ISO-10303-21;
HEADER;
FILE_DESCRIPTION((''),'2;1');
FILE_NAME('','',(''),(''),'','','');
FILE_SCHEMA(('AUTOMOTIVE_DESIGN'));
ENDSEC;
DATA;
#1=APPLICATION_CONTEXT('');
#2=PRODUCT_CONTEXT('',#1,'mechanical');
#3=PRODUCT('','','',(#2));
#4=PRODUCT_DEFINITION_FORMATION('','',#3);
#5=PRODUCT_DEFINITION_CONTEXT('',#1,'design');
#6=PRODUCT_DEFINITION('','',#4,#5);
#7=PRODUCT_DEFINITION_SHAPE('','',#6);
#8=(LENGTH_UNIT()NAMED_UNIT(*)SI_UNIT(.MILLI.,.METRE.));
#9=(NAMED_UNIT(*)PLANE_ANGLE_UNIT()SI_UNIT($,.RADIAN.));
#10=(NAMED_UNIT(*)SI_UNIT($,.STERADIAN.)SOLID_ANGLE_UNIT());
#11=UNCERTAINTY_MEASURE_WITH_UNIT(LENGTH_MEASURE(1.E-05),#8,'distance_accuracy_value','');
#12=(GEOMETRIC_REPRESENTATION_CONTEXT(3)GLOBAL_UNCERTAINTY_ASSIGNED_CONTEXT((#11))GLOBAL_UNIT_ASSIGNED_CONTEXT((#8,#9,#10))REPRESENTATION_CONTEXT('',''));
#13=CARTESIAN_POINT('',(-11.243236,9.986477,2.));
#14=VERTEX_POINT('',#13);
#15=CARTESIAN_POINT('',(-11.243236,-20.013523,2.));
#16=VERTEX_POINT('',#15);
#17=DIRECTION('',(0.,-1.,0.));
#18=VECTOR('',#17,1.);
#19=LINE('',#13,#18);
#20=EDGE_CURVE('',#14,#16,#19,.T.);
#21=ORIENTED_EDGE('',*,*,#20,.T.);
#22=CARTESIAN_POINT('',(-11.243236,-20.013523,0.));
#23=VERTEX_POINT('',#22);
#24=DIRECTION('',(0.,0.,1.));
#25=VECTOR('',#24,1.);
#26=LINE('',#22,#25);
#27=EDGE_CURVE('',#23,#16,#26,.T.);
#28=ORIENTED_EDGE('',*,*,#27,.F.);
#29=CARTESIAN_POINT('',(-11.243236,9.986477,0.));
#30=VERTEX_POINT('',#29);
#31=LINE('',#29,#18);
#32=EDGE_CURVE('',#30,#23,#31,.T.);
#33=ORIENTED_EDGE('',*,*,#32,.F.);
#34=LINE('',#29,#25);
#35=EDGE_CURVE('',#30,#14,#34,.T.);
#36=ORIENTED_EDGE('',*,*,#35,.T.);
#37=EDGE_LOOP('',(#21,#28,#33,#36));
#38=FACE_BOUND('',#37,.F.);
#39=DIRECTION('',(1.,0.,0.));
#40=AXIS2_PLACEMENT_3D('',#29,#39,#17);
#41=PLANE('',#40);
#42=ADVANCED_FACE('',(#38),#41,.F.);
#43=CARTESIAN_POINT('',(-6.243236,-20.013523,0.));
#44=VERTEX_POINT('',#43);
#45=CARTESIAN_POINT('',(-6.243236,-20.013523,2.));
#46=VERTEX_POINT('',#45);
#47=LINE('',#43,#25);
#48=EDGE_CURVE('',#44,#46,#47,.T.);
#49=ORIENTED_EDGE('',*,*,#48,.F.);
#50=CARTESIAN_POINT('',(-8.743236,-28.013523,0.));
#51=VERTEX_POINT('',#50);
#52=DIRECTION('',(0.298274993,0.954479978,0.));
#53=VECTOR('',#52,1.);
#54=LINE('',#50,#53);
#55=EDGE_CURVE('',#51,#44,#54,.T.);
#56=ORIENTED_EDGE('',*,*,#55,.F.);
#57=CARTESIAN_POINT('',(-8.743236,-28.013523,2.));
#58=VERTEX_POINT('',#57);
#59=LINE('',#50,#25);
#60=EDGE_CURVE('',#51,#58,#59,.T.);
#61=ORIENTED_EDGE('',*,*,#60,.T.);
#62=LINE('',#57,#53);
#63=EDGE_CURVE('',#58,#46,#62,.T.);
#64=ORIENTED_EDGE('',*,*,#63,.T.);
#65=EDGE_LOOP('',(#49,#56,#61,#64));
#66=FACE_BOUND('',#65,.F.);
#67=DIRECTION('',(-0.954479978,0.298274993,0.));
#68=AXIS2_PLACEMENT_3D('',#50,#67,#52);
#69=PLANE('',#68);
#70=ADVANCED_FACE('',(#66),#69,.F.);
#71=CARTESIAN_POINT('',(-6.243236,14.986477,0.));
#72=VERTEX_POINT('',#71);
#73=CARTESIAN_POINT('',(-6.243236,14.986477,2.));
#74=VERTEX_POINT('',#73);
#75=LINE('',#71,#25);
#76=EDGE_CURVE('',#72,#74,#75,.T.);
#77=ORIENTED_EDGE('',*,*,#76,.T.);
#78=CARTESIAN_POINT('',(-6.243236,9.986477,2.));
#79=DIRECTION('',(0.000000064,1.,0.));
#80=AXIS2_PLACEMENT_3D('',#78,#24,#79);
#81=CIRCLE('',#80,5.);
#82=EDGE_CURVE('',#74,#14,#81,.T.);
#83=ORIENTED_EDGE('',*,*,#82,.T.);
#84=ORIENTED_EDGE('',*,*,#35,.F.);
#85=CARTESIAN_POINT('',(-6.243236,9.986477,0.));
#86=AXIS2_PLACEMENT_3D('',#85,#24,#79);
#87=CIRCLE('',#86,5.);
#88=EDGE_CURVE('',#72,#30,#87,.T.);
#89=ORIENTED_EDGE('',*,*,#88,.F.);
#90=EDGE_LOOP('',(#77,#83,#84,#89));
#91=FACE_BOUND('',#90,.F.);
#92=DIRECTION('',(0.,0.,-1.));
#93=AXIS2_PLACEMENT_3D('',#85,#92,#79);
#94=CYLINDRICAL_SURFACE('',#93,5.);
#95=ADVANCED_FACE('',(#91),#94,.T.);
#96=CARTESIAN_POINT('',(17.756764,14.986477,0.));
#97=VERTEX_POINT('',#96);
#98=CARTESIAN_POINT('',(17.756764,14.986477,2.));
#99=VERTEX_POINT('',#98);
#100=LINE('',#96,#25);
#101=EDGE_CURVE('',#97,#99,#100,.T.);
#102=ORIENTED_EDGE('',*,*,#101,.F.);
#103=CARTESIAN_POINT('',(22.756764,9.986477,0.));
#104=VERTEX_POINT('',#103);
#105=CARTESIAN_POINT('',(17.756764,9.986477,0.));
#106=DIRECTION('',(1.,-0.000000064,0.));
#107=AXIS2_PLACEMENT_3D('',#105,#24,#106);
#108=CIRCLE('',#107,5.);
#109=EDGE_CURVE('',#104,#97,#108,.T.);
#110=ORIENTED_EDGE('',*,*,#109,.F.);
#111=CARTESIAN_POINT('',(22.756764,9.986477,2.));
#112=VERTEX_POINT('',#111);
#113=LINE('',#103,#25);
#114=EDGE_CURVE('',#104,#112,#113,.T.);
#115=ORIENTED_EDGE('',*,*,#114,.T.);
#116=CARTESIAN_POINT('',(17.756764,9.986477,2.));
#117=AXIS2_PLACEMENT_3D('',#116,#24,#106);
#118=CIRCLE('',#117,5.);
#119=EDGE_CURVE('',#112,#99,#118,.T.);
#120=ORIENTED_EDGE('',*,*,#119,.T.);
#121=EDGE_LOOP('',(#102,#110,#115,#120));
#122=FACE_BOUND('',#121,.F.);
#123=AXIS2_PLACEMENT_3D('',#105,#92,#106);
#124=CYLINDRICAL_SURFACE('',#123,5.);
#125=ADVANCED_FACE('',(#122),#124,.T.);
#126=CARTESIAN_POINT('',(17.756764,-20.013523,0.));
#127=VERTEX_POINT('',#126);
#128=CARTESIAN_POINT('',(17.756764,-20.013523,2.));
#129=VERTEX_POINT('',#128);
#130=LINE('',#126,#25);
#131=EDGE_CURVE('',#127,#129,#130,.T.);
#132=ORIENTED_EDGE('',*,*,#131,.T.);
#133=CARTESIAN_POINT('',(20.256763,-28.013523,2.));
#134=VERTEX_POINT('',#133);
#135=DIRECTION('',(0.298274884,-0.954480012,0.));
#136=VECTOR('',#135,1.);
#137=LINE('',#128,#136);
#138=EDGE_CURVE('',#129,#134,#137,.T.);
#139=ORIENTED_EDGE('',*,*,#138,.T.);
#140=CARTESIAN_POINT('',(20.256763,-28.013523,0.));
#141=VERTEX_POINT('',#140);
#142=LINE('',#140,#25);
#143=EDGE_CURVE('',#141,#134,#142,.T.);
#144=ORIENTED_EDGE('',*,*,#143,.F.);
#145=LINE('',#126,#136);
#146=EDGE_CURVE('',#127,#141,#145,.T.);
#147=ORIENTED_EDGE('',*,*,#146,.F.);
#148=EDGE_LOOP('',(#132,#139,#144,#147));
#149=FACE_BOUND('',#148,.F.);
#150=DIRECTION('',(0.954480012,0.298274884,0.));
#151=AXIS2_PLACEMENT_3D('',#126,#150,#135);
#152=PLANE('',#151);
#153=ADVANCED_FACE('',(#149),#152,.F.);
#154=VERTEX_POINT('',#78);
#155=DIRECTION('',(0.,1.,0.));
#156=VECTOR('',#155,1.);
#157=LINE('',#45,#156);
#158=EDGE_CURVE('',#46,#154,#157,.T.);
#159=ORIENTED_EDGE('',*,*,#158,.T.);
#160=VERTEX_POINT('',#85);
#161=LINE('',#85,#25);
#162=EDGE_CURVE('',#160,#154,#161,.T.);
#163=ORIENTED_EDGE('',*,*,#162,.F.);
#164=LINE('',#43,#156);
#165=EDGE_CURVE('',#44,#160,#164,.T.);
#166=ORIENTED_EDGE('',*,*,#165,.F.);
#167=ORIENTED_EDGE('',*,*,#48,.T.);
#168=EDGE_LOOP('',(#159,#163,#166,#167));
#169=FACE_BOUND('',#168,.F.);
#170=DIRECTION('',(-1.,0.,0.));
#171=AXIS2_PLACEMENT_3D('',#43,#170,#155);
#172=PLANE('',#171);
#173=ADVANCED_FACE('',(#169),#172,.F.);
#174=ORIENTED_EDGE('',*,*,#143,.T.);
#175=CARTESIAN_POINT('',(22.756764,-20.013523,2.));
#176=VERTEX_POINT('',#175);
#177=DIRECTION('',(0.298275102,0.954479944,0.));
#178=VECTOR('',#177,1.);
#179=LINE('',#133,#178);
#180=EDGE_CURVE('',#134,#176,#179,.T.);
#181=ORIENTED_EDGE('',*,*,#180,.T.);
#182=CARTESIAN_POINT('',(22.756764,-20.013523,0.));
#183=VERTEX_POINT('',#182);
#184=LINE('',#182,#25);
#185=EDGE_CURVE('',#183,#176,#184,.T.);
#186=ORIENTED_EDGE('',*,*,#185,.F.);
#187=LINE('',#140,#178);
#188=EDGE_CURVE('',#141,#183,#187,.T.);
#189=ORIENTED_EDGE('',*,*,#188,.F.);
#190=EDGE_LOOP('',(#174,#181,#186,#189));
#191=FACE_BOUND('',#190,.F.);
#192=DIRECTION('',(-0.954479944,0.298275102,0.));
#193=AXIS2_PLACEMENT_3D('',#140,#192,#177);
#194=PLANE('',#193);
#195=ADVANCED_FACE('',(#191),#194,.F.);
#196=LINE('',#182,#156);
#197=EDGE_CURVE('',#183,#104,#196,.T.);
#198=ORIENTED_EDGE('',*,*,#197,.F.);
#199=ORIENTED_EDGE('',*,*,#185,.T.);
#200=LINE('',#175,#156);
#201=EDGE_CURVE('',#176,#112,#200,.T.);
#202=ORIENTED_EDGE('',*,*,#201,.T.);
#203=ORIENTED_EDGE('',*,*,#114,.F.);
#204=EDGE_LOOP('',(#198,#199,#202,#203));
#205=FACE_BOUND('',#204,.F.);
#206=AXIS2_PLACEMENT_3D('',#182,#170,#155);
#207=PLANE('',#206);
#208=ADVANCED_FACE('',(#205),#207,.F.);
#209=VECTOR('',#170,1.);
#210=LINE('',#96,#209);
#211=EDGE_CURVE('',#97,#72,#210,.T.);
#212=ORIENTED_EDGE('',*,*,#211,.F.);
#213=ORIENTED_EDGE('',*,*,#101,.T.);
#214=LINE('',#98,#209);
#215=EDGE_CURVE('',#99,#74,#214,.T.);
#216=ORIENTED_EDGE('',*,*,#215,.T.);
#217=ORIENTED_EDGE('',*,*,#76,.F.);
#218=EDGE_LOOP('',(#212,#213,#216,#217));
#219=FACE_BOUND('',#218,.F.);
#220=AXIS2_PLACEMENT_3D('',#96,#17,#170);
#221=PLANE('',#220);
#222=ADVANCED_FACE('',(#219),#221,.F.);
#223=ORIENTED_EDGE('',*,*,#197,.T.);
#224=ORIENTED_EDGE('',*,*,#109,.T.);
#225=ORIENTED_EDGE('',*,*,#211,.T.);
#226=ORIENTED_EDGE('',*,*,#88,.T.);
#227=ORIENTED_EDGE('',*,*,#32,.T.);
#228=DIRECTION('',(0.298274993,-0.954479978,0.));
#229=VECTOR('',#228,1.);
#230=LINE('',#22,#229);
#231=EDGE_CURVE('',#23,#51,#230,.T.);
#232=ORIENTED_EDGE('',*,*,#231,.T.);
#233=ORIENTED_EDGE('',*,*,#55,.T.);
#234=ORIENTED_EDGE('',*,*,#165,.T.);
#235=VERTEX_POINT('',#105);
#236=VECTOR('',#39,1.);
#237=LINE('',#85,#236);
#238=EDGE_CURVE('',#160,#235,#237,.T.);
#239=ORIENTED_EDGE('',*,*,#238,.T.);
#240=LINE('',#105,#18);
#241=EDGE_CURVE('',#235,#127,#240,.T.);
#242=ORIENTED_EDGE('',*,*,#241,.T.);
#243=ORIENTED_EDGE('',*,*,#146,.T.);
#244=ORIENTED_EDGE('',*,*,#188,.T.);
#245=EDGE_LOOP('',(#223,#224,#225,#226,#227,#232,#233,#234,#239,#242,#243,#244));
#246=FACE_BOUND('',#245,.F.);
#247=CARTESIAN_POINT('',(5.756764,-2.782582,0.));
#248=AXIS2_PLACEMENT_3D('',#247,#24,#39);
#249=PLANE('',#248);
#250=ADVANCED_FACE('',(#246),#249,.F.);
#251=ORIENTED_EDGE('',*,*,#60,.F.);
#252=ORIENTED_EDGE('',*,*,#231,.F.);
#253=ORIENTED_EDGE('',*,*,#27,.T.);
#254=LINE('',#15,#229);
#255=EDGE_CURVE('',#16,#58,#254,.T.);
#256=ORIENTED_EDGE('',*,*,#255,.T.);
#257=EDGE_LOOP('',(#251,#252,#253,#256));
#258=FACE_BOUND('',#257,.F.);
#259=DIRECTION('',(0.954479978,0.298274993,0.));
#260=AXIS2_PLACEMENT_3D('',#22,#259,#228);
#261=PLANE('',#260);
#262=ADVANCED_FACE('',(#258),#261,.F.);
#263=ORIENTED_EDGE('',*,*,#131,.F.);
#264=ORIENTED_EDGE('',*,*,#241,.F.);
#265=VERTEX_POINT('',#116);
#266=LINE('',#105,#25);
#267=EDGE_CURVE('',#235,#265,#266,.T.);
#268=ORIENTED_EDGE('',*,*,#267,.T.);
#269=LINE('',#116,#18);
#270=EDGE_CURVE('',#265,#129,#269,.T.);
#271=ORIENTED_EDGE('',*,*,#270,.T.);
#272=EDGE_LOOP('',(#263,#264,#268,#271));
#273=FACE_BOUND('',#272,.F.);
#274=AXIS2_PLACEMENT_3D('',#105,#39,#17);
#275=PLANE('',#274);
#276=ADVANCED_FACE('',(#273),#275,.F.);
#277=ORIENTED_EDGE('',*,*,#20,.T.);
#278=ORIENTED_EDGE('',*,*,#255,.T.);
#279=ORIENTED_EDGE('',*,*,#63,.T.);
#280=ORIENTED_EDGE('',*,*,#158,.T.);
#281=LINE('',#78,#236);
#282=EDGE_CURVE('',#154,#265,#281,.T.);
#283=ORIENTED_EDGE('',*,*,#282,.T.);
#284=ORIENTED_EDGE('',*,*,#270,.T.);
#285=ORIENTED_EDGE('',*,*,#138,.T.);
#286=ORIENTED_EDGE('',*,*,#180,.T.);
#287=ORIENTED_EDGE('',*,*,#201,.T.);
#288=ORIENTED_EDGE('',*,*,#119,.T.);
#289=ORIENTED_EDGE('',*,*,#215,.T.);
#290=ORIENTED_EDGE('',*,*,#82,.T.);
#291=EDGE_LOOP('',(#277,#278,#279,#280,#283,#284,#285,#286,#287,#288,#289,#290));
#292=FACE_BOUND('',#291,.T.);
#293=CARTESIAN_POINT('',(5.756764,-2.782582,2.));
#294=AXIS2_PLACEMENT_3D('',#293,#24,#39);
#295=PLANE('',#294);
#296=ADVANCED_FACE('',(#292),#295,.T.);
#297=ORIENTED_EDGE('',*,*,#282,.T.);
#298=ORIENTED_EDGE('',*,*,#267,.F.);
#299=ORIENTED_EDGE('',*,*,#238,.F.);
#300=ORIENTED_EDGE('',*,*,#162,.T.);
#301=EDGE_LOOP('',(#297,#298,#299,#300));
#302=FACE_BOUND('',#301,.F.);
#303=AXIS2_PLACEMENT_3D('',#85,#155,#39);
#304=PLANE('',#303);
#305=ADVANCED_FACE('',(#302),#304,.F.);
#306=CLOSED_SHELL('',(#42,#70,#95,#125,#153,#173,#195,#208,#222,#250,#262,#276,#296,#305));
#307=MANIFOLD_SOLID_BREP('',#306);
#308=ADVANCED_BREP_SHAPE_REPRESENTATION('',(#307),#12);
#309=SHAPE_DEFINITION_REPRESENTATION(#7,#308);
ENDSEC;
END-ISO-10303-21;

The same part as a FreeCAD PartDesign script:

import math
import FreeCAD as App
import Part
import Sketcher
from FreeCAD import Vector
Q = App.Units.Quantity

doc = App.newDocument("Part")
body = doc.addObject("PartDesign::Body", "Body")

# Sketch on XY plane
sketch1 = doc.addObject("Sketcher::SketchObject", "Sketch")
body.addObject(sketch1)
sketch1.AttachmentSupport = (doc.XY_Plane, [""])
sketch1.MapMode = "FlatFace"
sketch1.addGeometry(Part.LineSegment(Vector(-11.243236, 9.986477, 0), Vector(-11.243236, -20.013523, 0)), False)
sketch1.addGeometry(Part.LineSegment(Vector(-11.243236, -20.013523, 0), Vector(-8.743236, -28.013523, 0)), False)
sketch1.addGeometry(Part.LineSegment(Vector(-8.743236, -28.013523, 0), Vector(-6.243236, -20.013523, 0)), False)
sketch1.addGeometry(Part.LineSegment(Vector(-6.243236, -20.013523, 0), Vector(-6.243236, 9.986477, 0)), False)
sketch1.addGeometry(Part.LineSegment(Vector(-6.243236, 9.986477, 0), Vector(17.756764, 9.986477, 0)), False)
sketch1.addGeometry(Part.LineSegment(Vector(17.756764, 9.986477, 0), Vector(17.756764, -20.013523, 0)), False)
sketch1.addGeometry(Part.LineSegment(Vector(17.756764, -20.013523, 0), Vector(20.256763, -28.013523, 0)), False)
sketch1.addGeometry(Part.LineSegment(Vector(20.256763, -28.013523, 0), Vector(22.756764, -20.013523, 0)), False)
sketch1.addGeometry(Part.LineSegment(Vector(22.756764, -20.013523, 0), Vector(22.756764, 9.986477, 0)), False)
sketch1.addGeometry(Part.ArcOfCircle(Part.Circle(Vector(17.756764, 9.986477, 0), Vector(0, 0, 1), 5), math.radians(-0.000004), math.radians(90.000004)), False)
sketch1.addGeometry(Part.LineSegment(Vector(17.756764, 14.986477, 0), Vector(-6.243236, 14.986477, 0)), False)
sketch1.addGeometry(Part.ArcOfCircle(Part.Circle(Vector(-6.243236, 9.986477, 0), Vector(0, 0, 1), 5), math.radians(89.999996), math.radians(180.000004)), False)
sketch1.addConstraint(Sketcher.Constraint("Coincident", 0, 2, 1, 1))
sketch1.addConstraint(Sketcher.Constraint("Coincident", 1, 2, 2, 1))
sketch1.addConstraint(Sketcher.Constraint("Coincident", 2, 2, 3, 1))
sketch1.addConstraint(Sketcher.Constraint("Coincident", 3, 2, 4, 1))
sketch1.addConstraint(Sketcher.Constraint("Coincident", 4, 2, 5, 1))
sketch1.addConstraint(Sketcher.Constraint("Coincident", 5, 2, 6, 1))
sketch1.addConstraint(Sketcher.Constraint("Coincident", 6, 2, 7, 1))
sketch1.addConstraint(Sketcher.Constraint("Coincident", 7, 2, 8, 1))
sketch1.addConstraint(Sketcher.Constraint("Tangent", 8, 2, 9, 1))
sketch1.addConstraint(Sketcher.Constraint("Tangent", 9, 2, 10, 1))
sketch1.addConstraint(Sketcher.Constraint("Tangent", 10, 2, 11, 1))
sketch1.addConstraint(Sketcher.Constraint("Tangent", 11, 2, 0, 1))
sketch1.addConstraint(Sketcher.Constraint("Vertical", 0))
sketch1.addConstraint(Sketcher.Constraint("Vertical", 3))
sketch1.addConstraint(Sketcher.Constraint("Horizontal", 4))
sketch1.addConstraint(Sketcher.Constraint("Vertical", 5))
sketch1.addConstraint(Sketcher.Constraint("Vertical", 8))
sketch1.addConstraint(Sketcher.Constraint("Horizontal", 10))
sketch1.addConstraint(Sketcher.Constraint("Coincident", 3, 2, 11, 3))
sketch1.addConstraint(Sketcher.Constraint("Coincident", 4, 2, 9, 3))
sketch1.addConstraint(Sketcher.Constraint("Parallel", 1, 6))
sketch1.addConstraint(Sketcher.Constraint("Parallel", 2, 7))
sketch1.addConstraint(Sketcher.Constraint("Horizontal", 0, 2, 2, 2))
sketch1.addConstraint(Sketcher.Constraint("Horizontal", 2, 2, 5, 2))
sketch1.addConstraint(Sketcher.Constraint("Horizontal", 1, 2, 6, 2))
sketch1.addConstraint(Sketcher.Constraint("Equal", 1, 2))
sketch1.addConstraint(Sketcher.Constraint("Radius", 9, Q("5 mm")))
sketch1.addConstraint(Sketcher.Constraint("DistanceX", 4, 1, 4, 2, Q("24 mm")))
sketch1.addConstraint(Sketcher.Constraint("DistanceY", 0, 2, 0, 1, Q("30 mm")))
sketch1.addConstraint(Sketcher.Constraint("DistanceY", 1, 2, 0, 2, Q("8 mm")))
sketch1.addConstraint(Sketcher.Constraint("DistanceX", -1, 1, 9, 3, Q("17.756764 mm")))
sketch1.addConstraint(Sketcher.Constraint("DistanceY", -1, 1, 9, 3, Q("9.986477 mm")))
pad1 = doc.addObject("PartDesign::Pad", "Pad")
body.addObject(pad1)
pad1.Profile = sketch1
pad1.Length = 2

doc.recompute()
